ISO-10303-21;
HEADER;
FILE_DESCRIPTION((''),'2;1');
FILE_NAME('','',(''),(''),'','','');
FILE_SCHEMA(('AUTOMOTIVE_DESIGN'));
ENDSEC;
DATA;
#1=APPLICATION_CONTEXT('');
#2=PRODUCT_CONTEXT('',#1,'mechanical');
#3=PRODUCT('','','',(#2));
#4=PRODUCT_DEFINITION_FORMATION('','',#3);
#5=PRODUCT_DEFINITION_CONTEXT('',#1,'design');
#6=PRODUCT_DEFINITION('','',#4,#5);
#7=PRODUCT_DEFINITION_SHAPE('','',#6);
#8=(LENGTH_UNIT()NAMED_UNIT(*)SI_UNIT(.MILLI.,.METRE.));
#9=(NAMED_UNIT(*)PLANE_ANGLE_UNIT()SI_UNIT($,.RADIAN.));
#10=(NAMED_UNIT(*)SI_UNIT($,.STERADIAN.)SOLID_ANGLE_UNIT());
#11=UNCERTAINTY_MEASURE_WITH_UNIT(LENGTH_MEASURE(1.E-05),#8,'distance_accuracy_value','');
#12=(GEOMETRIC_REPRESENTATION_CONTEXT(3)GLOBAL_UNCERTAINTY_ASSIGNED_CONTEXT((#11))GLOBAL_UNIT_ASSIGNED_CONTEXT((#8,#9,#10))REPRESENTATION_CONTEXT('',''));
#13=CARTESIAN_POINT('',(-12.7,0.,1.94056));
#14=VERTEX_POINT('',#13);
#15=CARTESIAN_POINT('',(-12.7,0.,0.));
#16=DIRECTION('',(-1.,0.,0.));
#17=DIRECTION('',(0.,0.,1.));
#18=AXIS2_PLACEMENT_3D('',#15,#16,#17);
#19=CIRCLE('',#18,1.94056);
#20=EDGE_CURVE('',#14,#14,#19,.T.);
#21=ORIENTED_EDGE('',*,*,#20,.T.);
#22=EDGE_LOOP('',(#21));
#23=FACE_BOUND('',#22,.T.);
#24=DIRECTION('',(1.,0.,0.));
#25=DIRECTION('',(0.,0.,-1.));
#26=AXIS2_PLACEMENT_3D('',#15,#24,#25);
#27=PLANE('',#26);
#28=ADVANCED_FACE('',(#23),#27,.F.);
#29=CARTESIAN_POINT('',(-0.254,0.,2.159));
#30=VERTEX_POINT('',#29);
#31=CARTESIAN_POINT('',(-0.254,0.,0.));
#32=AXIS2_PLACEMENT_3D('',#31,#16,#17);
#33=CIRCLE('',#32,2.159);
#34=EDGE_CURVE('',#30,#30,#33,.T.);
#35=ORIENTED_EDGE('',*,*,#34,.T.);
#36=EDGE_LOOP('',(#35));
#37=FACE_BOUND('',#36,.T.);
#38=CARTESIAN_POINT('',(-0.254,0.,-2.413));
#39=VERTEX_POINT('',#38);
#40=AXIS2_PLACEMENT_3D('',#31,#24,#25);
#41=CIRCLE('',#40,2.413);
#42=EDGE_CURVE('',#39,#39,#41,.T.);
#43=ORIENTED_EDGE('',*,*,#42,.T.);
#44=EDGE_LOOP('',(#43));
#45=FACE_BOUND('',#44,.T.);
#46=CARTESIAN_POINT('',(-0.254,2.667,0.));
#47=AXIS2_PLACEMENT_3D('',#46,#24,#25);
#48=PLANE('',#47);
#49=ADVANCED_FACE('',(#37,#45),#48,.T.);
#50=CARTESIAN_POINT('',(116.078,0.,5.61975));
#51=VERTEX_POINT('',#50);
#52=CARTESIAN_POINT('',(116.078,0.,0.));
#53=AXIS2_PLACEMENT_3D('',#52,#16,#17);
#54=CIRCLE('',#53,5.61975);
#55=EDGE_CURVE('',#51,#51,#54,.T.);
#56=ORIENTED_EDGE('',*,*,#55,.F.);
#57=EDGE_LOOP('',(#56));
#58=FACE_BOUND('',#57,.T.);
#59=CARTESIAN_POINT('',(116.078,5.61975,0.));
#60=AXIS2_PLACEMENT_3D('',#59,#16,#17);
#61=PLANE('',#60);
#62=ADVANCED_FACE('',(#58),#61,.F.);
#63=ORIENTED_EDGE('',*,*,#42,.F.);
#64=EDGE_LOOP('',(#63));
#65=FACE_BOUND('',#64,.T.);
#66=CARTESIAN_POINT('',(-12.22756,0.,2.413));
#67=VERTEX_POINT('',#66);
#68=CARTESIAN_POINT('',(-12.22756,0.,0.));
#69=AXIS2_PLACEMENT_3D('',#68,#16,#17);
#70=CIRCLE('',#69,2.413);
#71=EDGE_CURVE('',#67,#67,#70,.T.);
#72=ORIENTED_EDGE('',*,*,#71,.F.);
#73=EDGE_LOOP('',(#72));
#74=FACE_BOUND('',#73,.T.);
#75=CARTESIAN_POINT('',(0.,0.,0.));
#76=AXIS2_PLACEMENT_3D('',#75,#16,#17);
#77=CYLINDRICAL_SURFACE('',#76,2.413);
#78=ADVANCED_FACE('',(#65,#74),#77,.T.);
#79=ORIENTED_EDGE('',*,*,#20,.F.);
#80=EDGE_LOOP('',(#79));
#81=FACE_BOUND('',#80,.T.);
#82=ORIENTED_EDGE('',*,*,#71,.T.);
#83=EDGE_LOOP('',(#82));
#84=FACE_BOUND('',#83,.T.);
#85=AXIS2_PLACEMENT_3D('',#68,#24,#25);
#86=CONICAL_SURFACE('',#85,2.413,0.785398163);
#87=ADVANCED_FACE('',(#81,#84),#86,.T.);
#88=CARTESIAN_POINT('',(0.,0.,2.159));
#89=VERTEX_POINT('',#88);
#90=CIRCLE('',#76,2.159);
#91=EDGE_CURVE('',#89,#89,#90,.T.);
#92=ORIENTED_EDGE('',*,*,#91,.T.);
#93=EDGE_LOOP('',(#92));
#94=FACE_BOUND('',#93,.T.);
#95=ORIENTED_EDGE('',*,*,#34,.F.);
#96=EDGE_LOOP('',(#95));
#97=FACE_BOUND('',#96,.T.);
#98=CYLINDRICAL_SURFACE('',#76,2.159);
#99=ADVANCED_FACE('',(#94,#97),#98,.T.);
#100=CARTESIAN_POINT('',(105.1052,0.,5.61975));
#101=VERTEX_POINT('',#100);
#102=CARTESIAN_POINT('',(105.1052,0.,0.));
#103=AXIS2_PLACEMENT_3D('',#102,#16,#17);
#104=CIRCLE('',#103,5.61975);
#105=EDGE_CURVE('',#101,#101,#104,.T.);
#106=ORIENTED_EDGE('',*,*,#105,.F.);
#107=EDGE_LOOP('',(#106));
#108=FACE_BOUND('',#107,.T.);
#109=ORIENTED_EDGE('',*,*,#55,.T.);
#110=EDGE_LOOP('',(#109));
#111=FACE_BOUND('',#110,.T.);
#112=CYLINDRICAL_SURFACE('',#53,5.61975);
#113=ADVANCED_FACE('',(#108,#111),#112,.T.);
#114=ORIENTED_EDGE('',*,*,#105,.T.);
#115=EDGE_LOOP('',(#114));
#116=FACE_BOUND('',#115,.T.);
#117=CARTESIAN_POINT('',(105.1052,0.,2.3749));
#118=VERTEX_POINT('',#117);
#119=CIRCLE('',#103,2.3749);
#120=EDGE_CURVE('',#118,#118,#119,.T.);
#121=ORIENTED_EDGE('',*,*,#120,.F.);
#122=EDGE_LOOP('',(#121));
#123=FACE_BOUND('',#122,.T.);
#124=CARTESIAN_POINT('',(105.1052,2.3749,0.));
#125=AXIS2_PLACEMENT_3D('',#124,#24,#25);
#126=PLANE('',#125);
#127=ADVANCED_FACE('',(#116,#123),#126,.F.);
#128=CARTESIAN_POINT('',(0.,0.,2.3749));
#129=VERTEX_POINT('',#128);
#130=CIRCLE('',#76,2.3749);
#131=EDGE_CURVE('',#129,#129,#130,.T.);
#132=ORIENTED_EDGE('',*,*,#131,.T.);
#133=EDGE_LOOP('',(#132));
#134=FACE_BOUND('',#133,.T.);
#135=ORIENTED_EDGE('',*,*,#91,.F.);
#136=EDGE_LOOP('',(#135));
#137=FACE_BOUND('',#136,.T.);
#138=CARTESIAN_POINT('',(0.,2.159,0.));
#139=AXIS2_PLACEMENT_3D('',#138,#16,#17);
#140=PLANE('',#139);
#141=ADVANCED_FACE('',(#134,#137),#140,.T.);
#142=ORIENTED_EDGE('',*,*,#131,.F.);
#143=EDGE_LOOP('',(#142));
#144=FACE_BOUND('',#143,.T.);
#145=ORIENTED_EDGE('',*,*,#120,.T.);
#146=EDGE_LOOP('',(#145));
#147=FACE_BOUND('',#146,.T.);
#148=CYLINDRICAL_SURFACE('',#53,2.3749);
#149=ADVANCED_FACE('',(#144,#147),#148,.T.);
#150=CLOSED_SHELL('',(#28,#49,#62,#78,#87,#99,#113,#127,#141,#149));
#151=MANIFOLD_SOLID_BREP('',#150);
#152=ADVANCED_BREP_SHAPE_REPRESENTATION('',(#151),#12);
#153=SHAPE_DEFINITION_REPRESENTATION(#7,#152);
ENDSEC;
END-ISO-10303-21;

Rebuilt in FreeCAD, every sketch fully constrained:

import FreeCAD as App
import Part
import Sketcher

V = App.Vector
Q = App.Units.Quantity

doc = App.newDocument("Part")
params = doc.addObject("Spreadsheet::Sheet", "Params")
for row, (alias, value) in enumerate([
    ("sketch1_width", "4.57 in"),
    ("sketch1_width2", "0.432 in"),
    ("revolution_angle", "360 deg"),
    ("sketch2_width", "0.5 in"),
    ("sketch2_height", "0.095 in"),
    ("revolution2_angle", "360 deg"),
    ("sketch3_width", "0.01 in"),
    ("sketch3_height", "0.02 in"),
    ("groove_angle", "360 deg"),
], start=1):
    params.set(f"A{row}", alias)
    params.set(f"B{row}", "=" + value)
    params.setAlias(f"B{row}", alias)

body = doc.addObject("PartDesign::Body", "Body")

# Sketch on XY plane
sketch1 = doc.addObject("Sketcher::SketchObject", "Sketch")
body.addObject(sketch1)
sketch1.AttachmentSupport = (doc.XY_Plane, [""])
sketch1.MapMode = "FlatFace"
sketch1.addGeometry(Part.LineSegment(V(0, 2.4, 0), V(0, 0, 0)), False)
sketch1.addGeometry(Part.LineSegment(V(0, 0, 0), V(116.1, 0, 0)), False)
sketch1.addGeometry(Part.LineSegment(V(116.1, 0, 0), V(116.1, 5.6, 0)), False)
sketch1.addGeometry(Part.LineSegment(V(116.1, 5.6, 0), V(105.1, 5.6, 0)), False)
sketch1.addGeometry(Part.LineSegment(V(105.1, 5.6, 0), V(105.1, 2.4, 0)), False)
sketch1.addGeometry(Part.LineSegment(V(105.1, 2.4, 0), V(0, 2.4, 0)), False)
sketch1.addConstraint(Sketcher.Constraint("Coincident", 0, 2, 1, 1))
sketch1.addConstraint(Sketcher.Constraint("Coincident", 1, 2, 2, 1))
sketch1.addConstraint(Sketcher.Constraint("Coincident", 2, 2, 3, 1))
sketch1.addConstraint(Sketcher.Constraint("Coincident", 3, 2, 4, 1))
sketch1.addConstraint(Sketcher.Constraint("Coincident", 4, 2, 5, 1))
sketch1.addConstraint(Sketcher.Constraint("Coincident", 5, 2, 0, 1))
sketch1.addConstraint(Sketcher.Constraint("Vertical", 0))
sketch1.addConstraint(Sketcher.Constraint("Horizontal", 1))
sketch1.addConstraint(Sketcher.Constraint("Vertical", 2))
sketch1.addConstraint(Sketcher.Constraint("Horizontal", 3))
sketch1.addConstraint(Sketcher.Constraint("Vertical", 4))
sketch1.addConstraint(Sketcher.Constraint("Horizontal", 5))
sketch1.addConstraint(Sketcher.Constraint("Coincident", 0, 2, -1, 1))
sketch1.addConstraint(Sketcher.Constraint("DistanceX", 1, 1, 1, 2, Q("4.57 in")))
sketch1.addConstraint(Sketcher.Constraint("DistanceX", 3, 2, 3, 1, Q("0.432 in")))
sketch1.addConstraint(Sketcher.Constraint("DistanceY", 0, 2, 0, 1, Q("0.0935 in")))
sketch1.addConstraint(Sketcher.Constraint("DistanceY", 2, 1, 2, 2, Q("5.61975 mm")))
sketch1.setExpression("Constraints[13]", "Params.sketch1_width")
sketch1.setExpression("Constraints[14]", "Params.sketch1_width2")
revolution = doc.addObject("PartDesign::Revolution", "Revolution")
body.addObject(revolution)
revolution.Profile = sketch1
revolution.ReferenceAxis = (sketch1, ["H_Axis"])
revolution.setExpression("Angle", "Params.revolution_angle")

# Sketch on XY plane
sketch2 = doc.addObject("Sketcher::SketchObject", "Sketch001")
body.addObject(sketch2)
sketch2.AttachmentSupport = (doc.XY_Plane, [""])
sketch2.MapMode = "FlatFace"
sketch2.addGeometry(Part.LineSegment(V(-12.7, 1.9, 0), V(-12.7, 0, 0)), False)
sketch2.addGeometry(Part.LineSegment(V(-12.7, 0, 0), V(0, 0, 0)), False)
sketch2.addGeometry(Part.LineSegment(V(0, 0, 0), V(0, 2.4, 0)), False)
sketch2.addGeometry(Part.LineSegment(V(0, 2.4, 0), V(-12.2, 2.4, 0)), False)
sketch2.addGeometry(Part.LineSegment(V(-12.2, 2.4, 0), V(-12.7, 1.9, 0)), False)
sketch2.addConstraint(Sketcher.Constraint("Coincident", 0, 2, 1, 1))
sketch2.addConstraint(Sketcher.Constraint("Coincident", 1, 2, 2, 1))
sketch2.addConstraint(Sketcher.Constraint("Coincident", 2, 2, 3, 1))
sketch2.addConstraint(Sketcher.Constraint("Coincident", 3, 2, 4, 1))
sketch2.addConstraint(Sketcher.Constraint("Coincident", 4, 2, 0, 1))
sketch2.addConstraint(Sketcher.Constraint("Vertical", 0))
sketch2.addConstraint(Sketcher.Constraint("Horizontal", 1))
sketch2.addConstraint(Sketcher.Constraint("Vertical", 2))
sketch2.addConstraint(Sketcher.Constraint("Horizontal", 3))
sketch2.addConstraint(Sketcher.Constraint("Coincident", 1, 2, -1, 1))
sketch2.addConstraint(Sketcher.Constraint("DistanceX", 1, 1, 1, 2, Q("0.5 in")))
sketch2.addConstraint(Sketcher.Constraint("Angle", 4, Q("-135 deg")))
sketch2.addConstraint(Sketcher.Constraint("DistanceY", 2, 1, 2, 2, Q("0.095 in")))
sketch2.addConstraint(Sketcher.Constraint("DistanceX", 3, 2, 3, 1, Q("0.4814 in")))
sketch2.setExpression("Constraints[10]", "Params.sketch2_width")
sketch2.setExpression("Constraints[12]", "Params.sketch2_height")
revolution2 = doc.addObject("PartDesign::Revolution", "Revolution001")
body.addObject(revolution2)
revolution2.Profile = sketch2
revolution2.ReferenceAxis = (sketch2, ["H_Axis"])
revolution2.setExpression("Angle", "Params.revolution2_angle")

# Sketch on XY plane
sketch3 = doc.addObject("Sketcher::SketchObject", "Sketch002")
body.addObject(sketch3)
sketch3.AttachmentSupport = (doc.XY_Plane, [""])
sketch3.MapMode = "FlatFace"
sketch3.addGeometry(Part.LineSegment(V(-0.25, 2.67, 0), V(-0.25, 2.16, 0)), False)
sketch3.addGeometry(Part.LineSegment(V(-0.25, 2.16, 0), V(0, 2.16, 0)), False)
sketch3.addGeometry(Part.LineSegment(V(0, 2.16, 0), V(0, 2.67, 0)), False)
sketch3.addGeometry(Part.LineSegment(V(0, 2.67, 0), V(-0.25, 2.67, 0)), False)
sketch3.addConstraint(Sketcher.Constraint("Coincident", 0, 2, 1, 1))
sketch3.addConstraint(Sketcher.Constraint("Coincident", 1, 2, 2, 1))
sketch3.addConstraint(Sketcher.Constraint("Coincident", 2, 2, 3, 1))
sketch3.addConstraint(Sketcher.Constraint("Coincident", 3, 2, 0, 1))
sketch3.addConstraint(Sketcher.Constraint("Vertical", 0))
sketch3.addConstraint(Sketcher.Constraint("Horizontal", 1))
sketch3.addConstraint(Sketcher.Constraint("Vertical", 2))
sketch3.addConstraint(Sketcher.Constraint("Horizontal", 3))
sketch3.addConstraint(Sketcher.Constraint("PointOnObject", 1, 2, -2))
sketch3.addConstraint(Sketcher.Constraint("DistanceX", 1, 1, 1, 2, Q("0.01 in")))
sketch3.addConstraint(Sketcher.Constraint("DistanceY", 0, 2, 0, 1, Q("0.02 in")))
sketch3.addConstraint(Sketcher.Constraint("DistanceY", -1, 1, 0, 2, Q("0.085 in")))
sketch3.setExpression("Constraints[9]", "Params.sketch3_width")
sketch3.setExpression("Constraints[10]", "Params.sketch3_height")
groove = doc.addObject("PartDesign::Groove", "Groove")
body.addObject(groove)
groove.Profile = sketch3
groove.ReferenceAxis = (sketch3, ["H_Axis"])
groove.setExpression("Angle", "Params.groove_angle")

doc.recompute()
